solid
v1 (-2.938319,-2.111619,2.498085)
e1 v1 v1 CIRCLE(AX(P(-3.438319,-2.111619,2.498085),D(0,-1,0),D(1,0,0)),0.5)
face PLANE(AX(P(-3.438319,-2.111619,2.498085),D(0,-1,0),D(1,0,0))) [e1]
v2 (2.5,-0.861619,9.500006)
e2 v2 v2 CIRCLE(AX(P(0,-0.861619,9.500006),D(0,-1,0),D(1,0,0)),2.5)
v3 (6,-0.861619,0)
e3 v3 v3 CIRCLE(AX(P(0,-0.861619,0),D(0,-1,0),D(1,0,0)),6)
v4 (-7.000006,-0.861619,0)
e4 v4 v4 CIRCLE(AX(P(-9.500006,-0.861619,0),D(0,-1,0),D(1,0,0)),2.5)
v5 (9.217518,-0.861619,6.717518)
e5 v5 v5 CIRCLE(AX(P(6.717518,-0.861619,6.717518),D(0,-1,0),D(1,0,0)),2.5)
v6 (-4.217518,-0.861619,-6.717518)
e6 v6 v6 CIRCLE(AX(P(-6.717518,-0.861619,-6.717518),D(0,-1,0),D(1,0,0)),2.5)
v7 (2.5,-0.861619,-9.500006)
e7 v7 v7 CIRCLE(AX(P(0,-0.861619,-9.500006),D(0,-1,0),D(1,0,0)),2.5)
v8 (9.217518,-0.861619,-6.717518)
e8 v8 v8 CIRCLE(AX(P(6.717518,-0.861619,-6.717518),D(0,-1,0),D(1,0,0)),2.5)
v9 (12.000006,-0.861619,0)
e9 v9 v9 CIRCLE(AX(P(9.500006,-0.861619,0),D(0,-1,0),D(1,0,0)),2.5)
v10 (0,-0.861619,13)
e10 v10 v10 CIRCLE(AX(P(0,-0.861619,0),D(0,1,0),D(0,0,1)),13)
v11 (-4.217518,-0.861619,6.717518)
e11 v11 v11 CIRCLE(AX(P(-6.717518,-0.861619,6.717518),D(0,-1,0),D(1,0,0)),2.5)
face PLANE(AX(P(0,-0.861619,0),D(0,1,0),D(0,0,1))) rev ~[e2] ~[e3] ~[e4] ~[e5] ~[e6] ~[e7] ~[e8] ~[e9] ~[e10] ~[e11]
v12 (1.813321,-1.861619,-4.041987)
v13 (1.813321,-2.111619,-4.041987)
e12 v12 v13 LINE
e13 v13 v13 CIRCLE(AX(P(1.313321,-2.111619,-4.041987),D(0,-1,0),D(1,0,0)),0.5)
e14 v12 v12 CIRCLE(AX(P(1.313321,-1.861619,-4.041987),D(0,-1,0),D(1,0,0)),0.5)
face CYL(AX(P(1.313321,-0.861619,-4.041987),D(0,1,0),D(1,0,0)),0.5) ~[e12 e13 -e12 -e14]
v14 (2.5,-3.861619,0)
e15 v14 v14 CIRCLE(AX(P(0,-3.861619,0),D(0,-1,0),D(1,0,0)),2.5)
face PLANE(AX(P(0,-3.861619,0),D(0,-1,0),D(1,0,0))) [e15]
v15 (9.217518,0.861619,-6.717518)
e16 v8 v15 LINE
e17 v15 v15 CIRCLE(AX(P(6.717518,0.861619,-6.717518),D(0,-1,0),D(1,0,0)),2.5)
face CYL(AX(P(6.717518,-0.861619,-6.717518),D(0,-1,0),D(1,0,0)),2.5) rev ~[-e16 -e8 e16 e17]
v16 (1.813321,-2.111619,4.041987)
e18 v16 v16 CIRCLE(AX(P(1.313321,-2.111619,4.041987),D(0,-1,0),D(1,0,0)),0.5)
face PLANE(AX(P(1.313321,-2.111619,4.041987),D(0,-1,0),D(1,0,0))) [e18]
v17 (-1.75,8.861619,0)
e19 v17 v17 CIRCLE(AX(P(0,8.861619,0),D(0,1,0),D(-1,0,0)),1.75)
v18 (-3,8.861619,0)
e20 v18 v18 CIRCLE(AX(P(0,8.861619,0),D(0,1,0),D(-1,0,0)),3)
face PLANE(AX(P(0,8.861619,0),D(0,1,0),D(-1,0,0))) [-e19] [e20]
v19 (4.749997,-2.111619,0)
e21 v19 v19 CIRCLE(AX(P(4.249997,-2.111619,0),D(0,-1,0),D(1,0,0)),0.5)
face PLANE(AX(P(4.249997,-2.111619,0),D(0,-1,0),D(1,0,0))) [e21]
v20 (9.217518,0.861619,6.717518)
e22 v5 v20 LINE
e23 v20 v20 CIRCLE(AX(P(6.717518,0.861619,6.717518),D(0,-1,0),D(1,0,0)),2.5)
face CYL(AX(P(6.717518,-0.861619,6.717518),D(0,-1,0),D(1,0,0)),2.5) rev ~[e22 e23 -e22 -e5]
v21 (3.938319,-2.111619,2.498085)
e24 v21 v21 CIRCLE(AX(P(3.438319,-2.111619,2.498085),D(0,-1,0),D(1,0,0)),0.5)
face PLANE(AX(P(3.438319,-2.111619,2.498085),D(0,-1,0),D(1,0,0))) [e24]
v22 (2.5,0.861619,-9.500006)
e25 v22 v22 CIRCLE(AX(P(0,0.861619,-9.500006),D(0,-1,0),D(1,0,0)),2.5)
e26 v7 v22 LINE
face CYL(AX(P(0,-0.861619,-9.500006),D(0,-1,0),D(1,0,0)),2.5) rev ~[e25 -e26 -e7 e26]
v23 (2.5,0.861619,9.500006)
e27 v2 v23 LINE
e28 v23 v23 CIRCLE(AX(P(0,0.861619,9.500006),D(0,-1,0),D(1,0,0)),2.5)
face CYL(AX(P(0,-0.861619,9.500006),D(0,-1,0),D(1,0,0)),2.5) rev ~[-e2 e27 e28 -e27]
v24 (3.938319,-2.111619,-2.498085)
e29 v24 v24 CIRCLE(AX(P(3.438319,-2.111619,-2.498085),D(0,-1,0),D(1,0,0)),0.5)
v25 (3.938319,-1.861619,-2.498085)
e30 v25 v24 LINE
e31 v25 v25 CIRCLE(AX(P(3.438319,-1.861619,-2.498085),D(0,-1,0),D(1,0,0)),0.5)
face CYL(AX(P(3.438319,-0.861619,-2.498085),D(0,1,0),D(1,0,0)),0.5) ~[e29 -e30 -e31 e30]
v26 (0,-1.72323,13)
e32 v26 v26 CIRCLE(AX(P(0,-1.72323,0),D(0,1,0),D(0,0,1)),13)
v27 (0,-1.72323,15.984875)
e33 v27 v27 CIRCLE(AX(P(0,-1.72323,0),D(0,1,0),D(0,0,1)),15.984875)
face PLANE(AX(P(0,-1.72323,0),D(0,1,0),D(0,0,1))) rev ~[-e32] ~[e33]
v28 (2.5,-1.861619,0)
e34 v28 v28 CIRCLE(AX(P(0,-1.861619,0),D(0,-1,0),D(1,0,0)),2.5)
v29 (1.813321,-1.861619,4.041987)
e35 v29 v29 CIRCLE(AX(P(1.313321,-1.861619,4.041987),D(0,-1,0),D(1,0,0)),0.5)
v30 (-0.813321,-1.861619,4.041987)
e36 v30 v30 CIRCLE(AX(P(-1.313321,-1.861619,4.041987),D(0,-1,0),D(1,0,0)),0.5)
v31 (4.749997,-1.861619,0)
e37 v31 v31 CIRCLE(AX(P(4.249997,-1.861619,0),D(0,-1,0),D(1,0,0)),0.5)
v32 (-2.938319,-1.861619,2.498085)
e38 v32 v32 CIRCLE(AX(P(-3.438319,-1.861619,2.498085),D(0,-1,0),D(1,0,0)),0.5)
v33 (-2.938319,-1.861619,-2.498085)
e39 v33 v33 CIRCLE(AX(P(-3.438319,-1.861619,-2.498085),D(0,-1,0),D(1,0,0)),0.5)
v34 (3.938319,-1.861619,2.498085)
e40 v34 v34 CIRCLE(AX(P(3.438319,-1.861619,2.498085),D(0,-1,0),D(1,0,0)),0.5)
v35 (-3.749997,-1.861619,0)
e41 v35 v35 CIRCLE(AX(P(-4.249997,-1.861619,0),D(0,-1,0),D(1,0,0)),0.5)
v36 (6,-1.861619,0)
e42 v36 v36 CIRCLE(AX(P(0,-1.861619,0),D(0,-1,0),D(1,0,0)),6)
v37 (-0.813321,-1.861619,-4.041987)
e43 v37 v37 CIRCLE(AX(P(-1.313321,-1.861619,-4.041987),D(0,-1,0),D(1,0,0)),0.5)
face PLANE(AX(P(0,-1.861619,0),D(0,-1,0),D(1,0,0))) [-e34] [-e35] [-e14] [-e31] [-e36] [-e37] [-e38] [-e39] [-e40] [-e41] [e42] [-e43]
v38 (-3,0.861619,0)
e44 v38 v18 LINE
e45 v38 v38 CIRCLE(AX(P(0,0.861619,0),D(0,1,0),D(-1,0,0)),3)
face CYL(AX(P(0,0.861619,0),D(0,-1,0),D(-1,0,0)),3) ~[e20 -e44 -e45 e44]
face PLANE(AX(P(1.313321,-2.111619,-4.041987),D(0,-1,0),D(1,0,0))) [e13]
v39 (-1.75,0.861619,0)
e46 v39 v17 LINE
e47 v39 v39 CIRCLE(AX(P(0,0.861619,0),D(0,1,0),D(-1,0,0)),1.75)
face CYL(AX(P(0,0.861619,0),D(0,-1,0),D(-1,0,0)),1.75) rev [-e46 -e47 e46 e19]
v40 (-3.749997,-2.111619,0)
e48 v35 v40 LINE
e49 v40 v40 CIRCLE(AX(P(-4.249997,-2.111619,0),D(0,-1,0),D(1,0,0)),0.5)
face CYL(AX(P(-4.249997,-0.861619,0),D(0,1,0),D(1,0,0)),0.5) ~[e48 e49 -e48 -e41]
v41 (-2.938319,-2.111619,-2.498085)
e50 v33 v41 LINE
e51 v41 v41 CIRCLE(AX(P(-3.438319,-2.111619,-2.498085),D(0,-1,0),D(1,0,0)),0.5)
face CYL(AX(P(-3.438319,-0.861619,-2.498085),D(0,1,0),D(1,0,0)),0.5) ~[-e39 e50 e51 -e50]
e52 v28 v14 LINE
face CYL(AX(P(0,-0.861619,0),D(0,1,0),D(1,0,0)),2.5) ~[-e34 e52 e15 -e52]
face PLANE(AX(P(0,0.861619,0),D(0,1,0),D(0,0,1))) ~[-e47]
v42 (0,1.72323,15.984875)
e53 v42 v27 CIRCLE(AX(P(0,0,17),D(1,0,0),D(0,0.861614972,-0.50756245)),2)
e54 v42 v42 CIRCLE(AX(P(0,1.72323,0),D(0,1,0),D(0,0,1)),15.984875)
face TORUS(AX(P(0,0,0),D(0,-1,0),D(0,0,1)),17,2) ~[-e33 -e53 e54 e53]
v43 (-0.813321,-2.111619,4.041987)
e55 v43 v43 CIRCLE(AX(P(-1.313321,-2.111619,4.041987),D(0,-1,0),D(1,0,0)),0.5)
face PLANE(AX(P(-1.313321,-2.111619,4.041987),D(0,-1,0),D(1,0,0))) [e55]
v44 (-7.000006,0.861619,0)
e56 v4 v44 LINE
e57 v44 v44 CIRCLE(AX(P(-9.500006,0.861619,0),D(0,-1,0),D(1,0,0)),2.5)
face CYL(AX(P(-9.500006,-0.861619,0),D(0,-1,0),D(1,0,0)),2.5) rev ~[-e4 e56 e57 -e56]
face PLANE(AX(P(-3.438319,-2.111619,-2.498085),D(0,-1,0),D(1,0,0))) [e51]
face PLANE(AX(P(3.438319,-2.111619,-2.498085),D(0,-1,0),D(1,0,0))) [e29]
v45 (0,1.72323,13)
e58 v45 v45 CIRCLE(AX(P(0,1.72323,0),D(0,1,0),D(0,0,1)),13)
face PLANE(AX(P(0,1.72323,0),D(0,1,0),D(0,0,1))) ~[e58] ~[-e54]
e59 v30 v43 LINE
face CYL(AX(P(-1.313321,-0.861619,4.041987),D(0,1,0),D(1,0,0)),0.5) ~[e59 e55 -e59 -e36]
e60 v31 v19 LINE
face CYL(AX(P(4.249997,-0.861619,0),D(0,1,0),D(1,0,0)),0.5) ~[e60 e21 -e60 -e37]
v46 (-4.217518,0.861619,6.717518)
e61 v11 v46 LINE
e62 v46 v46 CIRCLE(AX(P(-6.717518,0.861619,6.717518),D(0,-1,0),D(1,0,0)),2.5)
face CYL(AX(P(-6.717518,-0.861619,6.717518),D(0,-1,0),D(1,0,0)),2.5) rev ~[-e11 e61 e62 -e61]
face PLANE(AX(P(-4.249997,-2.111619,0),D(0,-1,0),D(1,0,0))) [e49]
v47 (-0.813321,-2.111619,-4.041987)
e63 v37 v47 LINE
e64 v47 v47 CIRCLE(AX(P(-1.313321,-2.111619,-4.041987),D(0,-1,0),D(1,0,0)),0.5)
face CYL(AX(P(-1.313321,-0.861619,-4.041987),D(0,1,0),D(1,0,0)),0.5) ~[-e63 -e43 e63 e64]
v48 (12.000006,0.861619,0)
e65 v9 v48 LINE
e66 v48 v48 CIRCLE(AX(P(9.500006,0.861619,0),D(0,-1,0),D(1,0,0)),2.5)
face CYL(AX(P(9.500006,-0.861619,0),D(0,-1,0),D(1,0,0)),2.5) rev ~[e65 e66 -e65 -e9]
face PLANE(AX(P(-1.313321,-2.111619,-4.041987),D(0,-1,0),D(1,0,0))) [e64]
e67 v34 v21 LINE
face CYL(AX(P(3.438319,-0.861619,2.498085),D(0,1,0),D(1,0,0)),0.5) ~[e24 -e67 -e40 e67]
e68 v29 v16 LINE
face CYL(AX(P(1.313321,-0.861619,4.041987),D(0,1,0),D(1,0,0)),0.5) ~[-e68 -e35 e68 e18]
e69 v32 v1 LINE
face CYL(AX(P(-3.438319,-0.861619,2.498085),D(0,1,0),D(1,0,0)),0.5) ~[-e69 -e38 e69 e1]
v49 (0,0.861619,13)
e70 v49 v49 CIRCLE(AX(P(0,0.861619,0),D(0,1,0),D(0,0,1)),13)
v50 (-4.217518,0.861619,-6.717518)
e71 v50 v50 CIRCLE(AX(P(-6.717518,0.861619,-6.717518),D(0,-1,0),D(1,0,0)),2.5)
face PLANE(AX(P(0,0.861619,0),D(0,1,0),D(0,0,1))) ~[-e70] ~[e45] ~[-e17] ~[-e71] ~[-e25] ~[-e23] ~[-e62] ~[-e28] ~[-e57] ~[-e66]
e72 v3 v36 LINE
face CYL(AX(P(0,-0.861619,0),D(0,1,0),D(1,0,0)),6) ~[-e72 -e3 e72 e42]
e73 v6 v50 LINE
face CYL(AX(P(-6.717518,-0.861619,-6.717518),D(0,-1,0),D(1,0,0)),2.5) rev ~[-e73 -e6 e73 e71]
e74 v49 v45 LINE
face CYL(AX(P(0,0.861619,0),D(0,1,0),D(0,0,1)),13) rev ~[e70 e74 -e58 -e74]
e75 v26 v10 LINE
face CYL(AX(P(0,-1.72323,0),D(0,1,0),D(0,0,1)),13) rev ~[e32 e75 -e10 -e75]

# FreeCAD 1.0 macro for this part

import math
import FreeCAD as App
import Part
import Sketcher

V = App.Vector
Q = App.Units.Quantity

doc = App.newDocument("Part")
body = doc.addObject("PartDesign::Body", "Body")

sketch1 = body.newObject("Sketcher::SketchObject", "Sketch")
sketch1.AttachmentSupport = (doc.getObject("YZ_Plane"), [""])
sketch1.MapMode = "FlatFace"
sketch1.addGeometry(Part.LineSegment(V(1.7, 13, 0), V(1.7, 16, 0)), False)
sketch1.addGeometry(Part.ArcOfCircle(Part.Circle(V(0, 17, 0), V(0, 0, 1), 2), math.radians(-31), math.radians(211)), False)
sketch1.addGeometry(Part.LineSegment(V(-1.7, 16, 0), V(-1.7, 13, 0)), False)
sketch1.addGeometry(Part.LineSegment(V(-1.7, 13, 0), V(-0.9, 13, 0)), False)
sketch1.addGeometry(Part.LineSegment(V(-0.9, 13, 0), V(-0.9, 0, 0)), False)
sketch1.addGeometry(Part.LineSegment(V(-0.9, 0, 0), V(0.9, 0, 0)), False)
sketch1.addGeometry(Part.LineSegment(V(0.9, 0, 0), V(0.9, 13, 0)), False)
sketch1.addGeometry(Part.LineSegment(V(0.9, 13, 0), V(1.7, 13, 0)), False)
sketch1.addConstraint(Sketcher.Constraint("Coincident", 0, 2, 1, 1))
sketch1.addConstraint(Sketcher.Constraint("Coincident", 1, 2, 2, 1))
sketch1.addConstraint(Sketcher.Constraint("Coincident", 2, 2, 3, 1))
sketch1.addConstraint(Sketcher.Constraint("Coincident", 3, 2, 4, 1))
sketch1.addConstraint(Sketcher.Constraint("Coincident", 4, 2, 5, 1))
sketch1.addConstraint(Sketcher.Constraint("Coincident", 5, 2, 6, 1))
sketch1.addConstraint(Sketcher.Constraint("Coincident", 6, 2, 7, 1))
sketch1.addConstraint(Sketcher.Constraint("Coincident", 7, 2, 0, 1))
sketch1.addConstraint(Sketcher.Constraint("Vertical", 0))
sketch1.addConstraint(Sketcher.Constraint("Vertical", 2))
sketch1.addConstraint(Sketcher.Constraint("Horizontal", 3))
sketch1.addConstraint(Sketcher.Constraint("Vertical", 4))
sketch1.addConstraint(Sketcher.Constraint("Horizontal", 5))
sketch1.addConstraint(Sketcher.Constraint("Vertical", 6))
sketch1.addConstraint(Sketcher.Constraint("Horizontal", 7))
sketch1.addConstraint(Sketcher.Constraint("Symmetric", 4, 2, 5, 2, -1, 1))
sketch1.addConstraint(Sketcher.Constraint("Symmetric", 0, 2, 1, 2, -2))
sketch1.addConstraint(Sketcher.Constraint("Horizontal", 3, 2, 6, 2))
sketch1.addConstraint(Sketcher.Constraint("Radius", 1, Q("2 mm")))
sketch1.addConstraint(Sketcher.Constraint("DistanceY", 4, 2, 4, 1, Q("13 mm")))
sketch1.addConstraint(Sketcher.Constraint("DistanceY", -1, 1, 1, 3, Q("17 mm")))
sketch1.addConstraint(Sketcher.Constraint("DistanceX", 3, 1, 3, 2, Q("0.861611 mm")))
sketch1.addConstraint(Sketcher.Constraint("DistanceX", 5, 1, 5, 2, Q("1.723238 mm")))
revolution = body.newObject("PartDesign::Revolution", "Revolution")
revolution.Profile = sketch1
revolution.ReferenceAxis = (sketch1, ["H_Axis"])
revolution.Angle = 360

sketch2 = body.newObject("Sketcher::SketchObject", "Sketch001")
sketch2.AttachmentSupport = (doc.getObject("XZ_Plane"), [""])
sketch2.MapMode = "FlatFace"
sketch2.AttachmentOffset = App.Placement(V(0, 0, 0.861619), App.Rotation())
sketch2.addGeometry(Part.Circle(V(0, 9.5, 0), V(0, 0, 1), 2.5), False)
sketch2.addGeometry(Part.Circle(V(6.7, 6.7, 0), V(0, 0, 1), 2.5), False)
sketch2.addGeometry(Part.Circle(V(9.5, 0, 0), V(0, 0, 1), 2.5), False)
sketch2.addGeometry(Part.Circle(V(6.7, -6.7, 0), V(0, 0, 1), 2.5), False)
sketch2.addGeometry(Part.Circle(V(0, -9.5, 0), V(0, 0, 1), 2.5), False)
sketch2.addGeometry(Part.Circle(V(-6.7, -6.7, 0), V(0, 0, 1), 2.5), False)
sketch2.addGeometry(Part.Circle(V(-9.5, 0, 0), V(0, 0, 1), 2.5), False)
sketch2.addGeometry(Part.Circle(V(-6.7, 6.7, 0), V(0, 0, 1), 2.5), False)
sketch2.addConstraint(Sketcher.Constraint("Equal", 0, 1))
sketch2.addConstraint(Sketcher.Constraint("Equal", 1, 2))
sketch2.addConstraint(Sketcher.Constraint("Equal", 2, 3))
sketch2.addConstraint(Sketcher.Constraint("Equal", 3, 4))
sketch2.addConstraint(Sketcher.Constraint("Equal", 4, 5))
sketch2.addConstraint(Sketcher.Constraint("Equal", 5, 6))
sketch2.addConstraint(Sketcher.Constraint("Equal", 6, 7))
sketch2.addConstraint(Sketcher.Constraint("Symmetric", 0, 3, 4, 3, -1, 1))
sketch2.addConstraint(Sketcher.Constraint("Symmetric", 1, 3, 5, 3, -1, 1))
sketch2.addConstraint(Sketcher.Constraint("Symmetric", 2, 3, 6, 3, -1, 1))
sketch2.addConstraint(Sketcher.Constraint("Symmetric", 3, 3, 7, 3, -1, 1))
sketch2.addConstraint(Sketcher.Constraint("Symmetric", 3, 3, 5, 3, -2))
sketch2.addConstraint(Sketcher.Constraint("PointOnObject", 0, 3, -2))
sketch2.addConstraint(Sketcher.Constraint("PointOnObject", 2, 3, -1))
sketch2.addConstraint(Sketcher.Constraint("Diameter", 0, Q("5 mm")))
sketch2.addConstraint(Sketcher.Constraint("DistanceY", 1, 3, 0, 3, Q("2.782488 mm")))
sketch2.addConstraint(Sketcher.Constraint("DistanceX", 1, 3, 2, 3, Q("2.782488 mm")))
sketch2.addConstraint(Sketcher.Constraint("DistanceY", -1, 1, 0, 3, Q("9.500006 mm")))
sketch2.addConstraint(Sketcher.Constraint("DistanceX", -1, 1, 1, 3, Q("6.717518 mm")))
pocket1 = body.newObject("PartDesign::Pocket", "Pocket")
pocket1.Profile = sketch2
pocket1.Length = 25.4

sketch3 = body.newObject("Sketcher::SketchObject", "Sketch002")
sketch3.AttachmentSupport = (doc.getObject("XZ_Plane"), [""])
sketch3.MapMode = "FlatFace"
sketch3.AttachmentOffset = App.Placement(V(0, 0, 0.861619), App.Rotation())
sketch3.addGeometry(Part.Circle(V(0, 0, 0), V(0, 0, 1), 2.5), False)
sketch3.addConstraint(Sketcher.Constraint("Coincident", 0, 3, -1, 1))
sketch3.addConstraint(Sketcher.Constraint("Diameter", 0, Q("5 mm")))
pad1 = body.newObject("PartDesign::Pad", "Pad")
pad1.Profile = sketch3
pad1.Length = 3

sketch4 = body.newObject("Sketcher::SketchObject", "Sketch003")
sketch4.AttachmentSupport = (doc.getObject("XZ_Plane"), [""])
sketch4.MapMode = "FlatFace"
sketch4.AttachmentOffset = App.Placement(V(0, 0, 0.861619), App.Rotation())
sketch4.addGeometry(Part.Circle(V(0, 0, 0), V(0, 0, 1), 6), False)
sketch4.addGeometry(Part.Circle(V(-3.4, -2.5, 0), V(0, 0, 1), 0.5), False)
sketch4.addGeometry(Part.Circle(V(-1.3, -4, 0), V(0, 0, 1), 0.5), False)
sketch4.addGeometry(Part.Circle(V(1.3, -4, 0), V(0, 0, 1), 0.5), False)
sketch4.addGeometry(Part.Circle(V(3.4, -2.5, 0), V(0, 0, 1), 0.5), False)
sketch4.addGeometry(Part.Circle(V(-4.2, 0, 0), V(0, 0, 1), 0.5), False)
sketch4.addGeometry(Part.Circle(V(-3.4, 2.5, 0), V(0, 0, 1), 0.5), False)
sketch4.addGeometry(Part.Circle(V(-1.3, 4, 0), V(0, 0, 1), 0.5), False)
sketch4.addGeometry(Part.Circle(V(0, 0, 0), V(0, 0, 1), 2.5), False)
sketch4.addGeometry(Part.Circle(V(4.2, 0, 0), V(0, 0, 1), 0.5), False)
sketch4.addGeometry(Part.Circle(V(1.3, 4, 0), V(0, 0, 1), 0.5), False)
sketch4.addGeometry(Part.Circle(V(3.4, 2.5, 0), V(0, 0, 1), 0.5), False)
sketch4.addConstraint(Sketcher.Constraint("Coincident", 0, 3, -1, 1))
sketch4.addConstraint(Sketcher.Constraint("Coincident", 8, 3, -1, 1))
sketch4.addConstraint(Sketcher.Constraint("Equal", 1, 2))
sketch4.addConstraint(Sketcher.Constraint("Equal", 2, 3))
sketch4.addConstraint(Sketcher.Constraint("Equal", 3, 4))
sketch4.addConstraint(Sketcher.Constraint("Equal", 4, 5))
sketch4.addConstraint(Sketcher.Constraint("Equal", 5, 6))
sketch4.addConstraint(Sketcher.Constraint("Equal", 6, 7))
sketch4.addConstraint(Sketcher.Constraint("Equal", 7, 9))
sketch4.addConstraint(Sketcher.Constraint("Equal", 9, 10))
sketch4.addConstraint(Sketcher.Constraint("Equal", 10, 11))
sketch4.addConstraint(Sketcher.Constraint("Symmetric", 4, 3, 6, 3, -1, 1))
sketch4.addConstraint(Sketcher.Constraint("Symmetric", 3, 3, 7, 3, -1, 1))
sketch4.addConstraint(Sketcher.Constraint("Symmetric", 5, 3, 9, 3, -1, 1))
sketch4.addConstraint(Sketcher.Constraint("Symmetric", 2, 3, 10, 3, -1, 1))
sketch4.addConstraint(Sketcher.Constraint("Symmetric", 1, 3, 11, 3, -1, 1))
sketch4.addConstraint(Sketcher.Constraint("Symmetric", 2, 3, 3, 3, -2))
sketch4.addConstraint(Sketcher.Constraint("Symmetric", 1, 3, 4, 3, -2))
sketch4.addConstraint(Sketcher.Constraint("PointOnObject", 5, 3, -1))
sketch4.addConstraint(Sketcher.Constraint("Diameter", 0, Q("12 mm")))
sketch4.addConstraint(Sketcher.Constraint("Diameter", 1, Q("1 mm")))
sketch4.addConstraint(Sketcher.Constraint("Diameter", 8, Q("5 mm")))
sketch4.addConstraint(Sketcher.Constraint("DistanceY", 2, 3, 1, 3, Q("1.543902 mm")))
sketch4.addConstraint(Sketcher.Constraint("DistanceX", 1, 3, -1, 1, Q("3.438319 mm")))
sketch4.addConstraint(Sketcher.Constraint("DistanceX", 2, 3, -1, 1, Q("1.313321 mm")))
sketch4.addConstraint(Sketcher.Constraint("DistanceY", 1, 3, 6, 3, Q("4.99617 mm")))
sketch4.addConstraint(Sketcher.Constraint("DistanceX", 5, 3, -1, 1, Q("4.249997 mm")))
pad2 = body.newObject("PartDesign::Pad", "Pad001")
pad2.Profile = sketch4
pad2.Length = 1

sketch5 = body.newObject("Sketcher::SketchObject", "Sketch004")
sketch5.AttachmentSupport = (doc.getObject("XZ_Plane"), [""])
sketch5.MapMode = "FlatFace"
sketch5.AttachmentOffset = App.Placement(V(0, 0, 0.861619), App.Rotation())
sketch5.addGeometry(Part.Circle(V(-1.3, 4, 0), V(0, 0, 1), 0.5), False)
sketch5.addGeometry(Part.Circle(V(1.3, 4, 0), V(0, 0, 1), 0.5), False)
sketch5.addGeometry(Part.Circle(V(3.4, 2.5, 0), V(0, 0, 1), 0.5), False)
sketch5.addGeometry(Part.Circle(V(4.2, 0, 0), V(0, 0, 1), 0.5), False)
sketch5.addGeometry(Part.Circle(V(3.4, -2.5, 0), V(0, 0, 1), 0.5), False)
sketch5.addGeometry(Part.Circle(V(1.3, -4, 0), V(0, 0, 1), 0.5), False)
sketch5.addGeometry(Part.Circle(V(-1.3, -4, 0), V(0, 0, 1), 0.5), False)
sketch5.addGeometry(Part.Circle(V(-3.4, -2.5, 0), V(0, 0, 1), 0.5), False)
sketch5.addGeometry(Part.Circle(V(-4.2, 0, 0), V(0, 0, 1), 0.5), False)
sketch5.addGeometry(Part.Circle(V(-3.4, 2.5, 0), V(0, 0, 1), 0.5), False)
sketch5.addConstraint(Sketcher.Constraint("Equal", 0, 1))
sketch5.addConstraint(Sketcher.Constraint("Equal", 1, 2))
sketch5.addConstraint(Sketcher.Constraint("Equal", 2, 3))
sketch5.addConstraint(Sketcher.Constraint("Equal", 3, 4))
sketch5.addConstraint(Sketcher.Constraint("Equal", 4, 5))
sketch5.addConstraint(Sketcher.Constraint("Equal", 5, 6))
sketch5.addConstraint(Sketcher.Constraint("Equal", 6, 7))
sketch5.addConstraint(Sketcher.Constraint("Equal", 7, 8))
sketch5.addConstraint(Sketcher.Constraint("Equal", 8, 9))
sketch5.addConstraint(Sketcher.Constraint("Symmetric", 0, 3, 5, 3, -1, 1))
sketch5.addConstraint(Sketcher.Constraint("Symmetric", 1, 3, 6, 3, -1, 1))
sketch5.addConstraint(Sketcher.Constraint("Symmetric", 2, 3, 7, 3, -1, 1))
sketch5.addConstraint(Sketcher.Constraint("Symmetric", 3, 3, 8, 3, -1, 1))
sketch5.addConstraint(Sketcher.Constraint("Symmetric", 4, 3, 9, 3, -1, 1))
sketch5.addConstraint(Sketcher.Constraint("Symmetric", 0, 3, 1, 3, -2))
sketch5.addConstraint(Sketcher.Constraint("Symmetric", 4, 3, 7, 3, -2))
sketch5.addConstraint(Sketcher.Constraint("PointOnObject", 3, 3, -1))
sketch5.addConstraint(Sketcher.Constraint("Diameter", 0, Q("1 mm")))
sketch5.addConstraint(Sketcher.Constraint("DistanceY", 2, 3, 1, 3, Q("1.543902 mm")))
sketch5.addConstraint(Sketcher.Constraint("DistanceX", 0, 3, -1, 1, Q("1.313321 mm")))
sketch5.addConstraint(Sketcher.Constraint("DistanceX", -1, 1, 2, 3, Q("3.438319 mm")))
sketch5.addConstraint(Sketcher.Constraint("DistanceY", 4, 3, 2, 3, Q("4.99617 mm")))
sketch5.addConstraint(Sketcher.Constraint("DistanceX", -1, 1, 3, 3, Q("4.249997 mm")))
pad3 = body.newObject("PartDesign::Pad", "Pad002")
pad3.Profile = sketch5
pad3.Length = 1.25

sketch6 = body.newObject("Sketcher::SketchObject", "Sketch005")
sketch6.AttachmentSupport = (doc.getObject("XZ_Plane"), [""])
sketch6.MapMode = "FlatFace"
sketch6.AttachmentOffset = App.Placement(V(0, 0, -0.861619), App.Rotation())
sketch6.addGeometry(Part.Circle(V(0, 0, 0), V(0, 0, 1), 3), False)
sketch6.addGeometry(Part.Circle(V(0, 0, 0), V(0, 0, 1), 1.8), False)
sketch6.addConstraint(Sketcher.Constraint("Coincident", 0, 3, -1, 1))
sketch6.addConstraint(Sketcher.Constraint("Coincident", 1, 3, -1, 1))
sketch6.addConstraint(Sketcher.Constraint("Diameter", 0, Q("6 mm")))
sketch6.addConstraint(Sketcher.Constraint("Diameter", 1, Q("3.5 mm")))
pad4 = body.newObject("PartDesign::Pad", "Pad003")
pad4.Profile = sketch6
pad4.Length = 8
pad4.Reversed = True

doc.recompute()
